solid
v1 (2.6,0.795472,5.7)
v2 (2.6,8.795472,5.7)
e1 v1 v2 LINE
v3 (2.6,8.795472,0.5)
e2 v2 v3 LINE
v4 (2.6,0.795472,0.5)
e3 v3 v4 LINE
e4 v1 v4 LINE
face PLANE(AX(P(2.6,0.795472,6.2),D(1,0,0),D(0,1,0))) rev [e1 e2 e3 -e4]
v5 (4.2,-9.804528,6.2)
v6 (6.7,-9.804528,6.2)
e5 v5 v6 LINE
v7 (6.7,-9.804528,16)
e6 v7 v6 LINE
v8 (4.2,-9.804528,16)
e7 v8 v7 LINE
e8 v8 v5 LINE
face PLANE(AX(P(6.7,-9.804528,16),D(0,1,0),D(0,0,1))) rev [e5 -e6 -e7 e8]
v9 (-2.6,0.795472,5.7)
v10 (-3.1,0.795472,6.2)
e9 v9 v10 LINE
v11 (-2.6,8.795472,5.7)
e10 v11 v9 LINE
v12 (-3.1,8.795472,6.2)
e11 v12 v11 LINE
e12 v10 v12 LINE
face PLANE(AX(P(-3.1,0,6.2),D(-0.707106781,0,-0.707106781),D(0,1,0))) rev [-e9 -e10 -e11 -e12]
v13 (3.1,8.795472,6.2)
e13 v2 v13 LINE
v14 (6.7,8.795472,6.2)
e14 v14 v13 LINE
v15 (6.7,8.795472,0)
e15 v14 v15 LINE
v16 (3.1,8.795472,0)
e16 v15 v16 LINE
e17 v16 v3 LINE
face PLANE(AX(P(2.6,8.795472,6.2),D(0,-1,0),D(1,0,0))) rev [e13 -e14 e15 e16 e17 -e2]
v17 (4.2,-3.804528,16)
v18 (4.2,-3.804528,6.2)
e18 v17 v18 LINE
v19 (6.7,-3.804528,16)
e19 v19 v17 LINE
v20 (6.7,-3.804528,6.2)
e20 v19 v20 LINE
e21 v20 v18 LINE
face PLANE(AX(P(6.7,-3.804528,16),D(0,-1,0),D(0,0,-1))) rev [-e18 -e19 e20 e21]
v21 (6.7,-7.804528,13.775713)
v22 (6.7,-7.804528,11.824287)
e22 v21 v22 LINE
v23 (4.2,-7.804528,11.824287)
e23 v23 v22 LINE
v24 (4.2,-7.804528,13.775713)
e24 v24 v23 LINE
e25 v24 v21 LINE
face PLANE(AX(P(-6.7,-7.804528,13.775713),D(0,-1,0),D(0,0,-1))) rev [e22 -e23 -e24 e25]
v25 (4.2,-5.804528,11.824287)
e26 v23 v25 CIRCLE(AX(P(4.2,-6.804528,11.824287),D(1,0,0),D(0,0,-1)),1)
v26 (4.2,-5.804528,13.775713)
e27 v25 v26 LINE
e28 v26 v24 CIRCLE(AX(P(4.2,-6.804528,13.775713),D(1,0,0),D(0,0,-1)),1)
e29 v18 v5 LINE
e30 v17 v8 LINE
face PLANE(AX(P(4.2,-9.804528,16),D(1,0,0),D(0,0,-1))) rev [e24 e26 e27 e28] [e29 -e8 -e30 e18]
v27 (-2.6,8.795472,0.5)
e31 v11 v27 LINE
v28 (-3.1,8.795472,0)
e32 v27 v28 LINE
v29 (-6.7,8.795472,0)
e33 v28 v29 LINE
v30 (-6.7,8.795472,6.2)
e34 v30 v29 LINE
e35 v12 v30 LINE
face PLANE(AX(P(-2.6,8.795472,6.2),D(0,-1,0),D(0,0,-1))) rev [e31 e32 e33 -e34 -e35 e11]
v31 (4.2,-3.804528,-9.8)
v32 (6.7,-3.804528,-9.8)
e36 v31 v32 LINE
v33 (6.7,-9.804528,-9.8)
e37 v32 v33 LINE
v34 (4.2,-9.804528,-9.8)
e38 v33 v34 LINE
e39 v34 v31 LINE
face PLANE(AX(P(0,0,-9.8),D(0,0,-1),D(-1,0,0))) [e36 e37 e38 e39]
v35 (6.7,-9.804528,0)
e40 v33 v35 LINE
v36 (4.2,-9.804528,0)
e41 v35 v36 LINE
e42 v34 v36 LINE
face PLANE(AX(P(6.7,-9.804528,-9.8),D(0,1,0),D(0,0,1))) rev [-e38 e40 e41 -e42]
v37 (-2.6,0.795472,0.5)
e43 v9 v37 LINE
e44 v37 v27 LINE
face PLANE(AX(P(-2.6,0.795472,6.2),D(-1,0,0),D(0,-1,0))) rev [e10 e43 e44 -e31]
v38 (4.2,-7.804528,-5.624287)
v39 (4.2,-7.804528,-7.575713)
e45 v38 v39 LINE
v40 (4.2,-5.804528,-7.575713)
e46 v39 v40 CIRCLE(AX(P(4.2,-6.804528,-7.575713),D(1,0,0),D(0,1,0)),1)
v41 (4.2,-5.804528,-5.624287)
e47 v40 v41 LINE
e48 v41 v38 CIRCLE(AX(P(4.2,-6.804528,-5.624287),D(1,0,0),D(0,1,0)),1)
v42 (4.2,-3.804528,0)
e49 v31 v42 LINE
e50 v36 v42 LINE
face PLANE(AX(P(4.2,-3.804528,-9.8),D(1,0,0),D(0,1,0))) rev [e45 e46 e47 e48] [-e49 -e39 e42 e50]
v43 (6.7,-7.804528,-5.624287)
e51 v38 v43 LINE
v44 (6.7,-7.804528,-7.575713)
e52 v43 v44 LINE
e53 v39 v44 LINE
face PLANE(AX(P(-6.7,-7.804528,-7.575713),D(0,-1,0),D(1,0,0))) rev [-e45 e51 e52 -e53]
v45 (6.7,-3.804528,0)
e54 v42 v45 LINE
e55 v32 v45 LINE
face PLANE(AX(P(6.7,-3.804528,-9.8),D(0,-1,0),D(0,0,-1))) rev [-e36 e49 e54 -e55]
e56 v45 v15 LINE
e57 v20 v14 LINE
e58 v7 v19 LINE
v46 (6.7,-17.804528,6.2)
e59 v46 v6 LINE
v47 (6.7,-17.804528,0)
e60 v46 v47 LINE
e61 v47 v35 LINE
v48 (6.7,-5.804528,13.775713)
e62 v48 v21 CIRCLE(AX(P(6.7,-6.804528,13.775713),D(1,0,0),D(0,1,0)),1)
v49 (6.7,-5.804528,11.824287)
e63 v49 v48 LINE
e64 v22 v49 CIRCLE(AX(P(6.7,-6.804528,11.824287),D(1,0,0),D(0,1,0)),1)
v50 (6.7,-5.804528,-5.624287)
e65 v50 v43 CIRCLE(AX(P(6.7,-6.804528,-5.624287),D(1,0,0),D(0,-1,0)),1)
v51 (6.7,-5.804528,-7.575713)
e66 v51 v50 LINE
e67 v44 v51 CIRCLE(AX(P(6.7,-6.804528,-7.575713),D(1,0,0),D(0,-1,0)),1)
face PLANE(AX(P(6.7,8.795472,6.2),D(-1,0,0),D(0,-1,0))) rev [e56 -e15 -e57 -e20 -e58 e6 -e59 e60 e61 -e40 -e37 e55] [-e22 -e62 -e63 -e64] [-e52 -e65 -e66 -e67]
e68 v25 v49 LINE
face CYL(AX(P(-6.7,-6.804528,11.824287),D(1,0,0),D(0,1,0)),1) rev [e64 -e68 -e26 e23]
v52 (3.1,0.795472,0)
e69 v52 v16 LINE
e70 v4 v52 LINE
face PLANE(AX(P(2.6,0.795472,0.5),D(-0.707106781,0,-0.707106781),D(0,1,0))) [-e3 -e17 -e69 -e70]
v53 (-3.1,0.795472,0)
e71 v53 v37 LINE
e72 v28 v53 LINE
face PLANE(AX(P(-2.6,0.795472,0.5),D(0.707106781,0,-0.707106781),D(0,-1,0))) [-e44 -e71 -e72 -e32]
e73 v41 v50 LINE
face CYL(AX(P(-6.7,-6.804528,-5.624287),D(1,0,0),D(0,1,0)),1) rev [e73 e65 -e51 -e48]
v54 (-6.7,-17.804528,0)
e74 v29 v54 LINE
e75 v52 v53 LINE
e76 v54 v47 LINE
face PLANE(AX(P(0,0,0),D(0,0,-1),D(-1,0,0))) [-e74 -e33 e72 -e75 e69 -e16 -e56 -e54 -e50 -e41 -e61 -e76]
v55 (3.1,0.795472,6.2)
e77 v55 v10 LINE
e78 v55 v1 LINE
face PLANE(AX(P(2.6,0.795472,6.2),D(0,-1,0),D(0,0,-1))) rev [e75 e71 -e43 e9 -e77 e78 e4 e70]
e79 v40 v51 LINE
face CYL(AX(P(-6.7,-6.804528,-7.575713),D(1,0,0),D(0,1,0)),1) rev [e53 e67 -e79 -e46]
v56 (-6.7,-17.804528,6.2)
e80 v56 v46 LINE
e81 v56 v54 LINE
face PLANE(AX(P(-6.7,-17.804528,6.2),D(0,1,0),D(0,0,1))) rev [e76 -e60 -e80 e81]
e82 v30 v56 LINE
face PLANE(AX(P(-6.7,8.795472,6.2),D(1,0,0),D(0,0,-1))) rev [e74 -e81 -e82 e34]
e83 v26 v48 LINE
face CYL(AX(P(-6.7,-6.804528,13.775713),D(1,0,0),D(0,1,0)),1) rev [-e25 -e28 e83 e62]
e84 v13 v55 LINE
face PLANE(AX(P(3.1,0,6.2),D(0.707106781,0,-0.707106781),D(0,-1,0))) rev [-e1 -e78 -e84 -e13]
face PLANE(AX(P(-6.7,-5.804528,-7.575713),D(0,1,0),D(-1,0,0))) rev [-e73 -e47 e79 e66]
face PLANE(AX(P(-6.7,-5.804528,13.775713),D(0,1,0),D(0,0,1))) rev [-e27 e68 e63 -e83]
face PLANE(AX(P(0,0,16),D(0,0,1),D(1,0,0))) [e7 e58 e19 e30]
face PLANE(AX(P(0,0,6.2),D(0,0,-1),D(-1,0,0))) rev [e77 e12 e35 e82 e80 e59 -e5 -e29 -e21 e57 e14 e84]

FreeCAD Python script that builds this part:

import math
import FreeCAD as App
import Part
import Sketcher
from FreeCAD import Vector


def edges_at(feature, points):
    """Names of the edges that pass closest to the given points."""
    edges = feature.Shape.Edges
    near = lambda p: min(range(len(edges)), key=lambda i: edges[i].distToShape(Part.Vertex(*p))[0])
    return sorted({f"Edge{near(p) + 1}" for p in points})

doc = App.newDocument("Part")
body = doc.addObject("PartDesign::Body", "Body")

sketch1 = body.newObject("Sketcher::SketchObject", "Sketch")
sketch1.AttachmentSupport = (doc.getObject("XY_Plane"), [""])
sketch1.MapMode = "FlatFace"
sketch1.addGeometry([
    Part.LineSegment(Vector(2.6, 0.795472, 0), Vector(-2.6, 0.795472, 0)),
    Part.LineSegment(Vector(-2.6, 0.795472, 0), Vector(-2.6, 8.795472, 0)),
    Part.LineSegment(Vector(-2.6, 8.795472, 0), Vector(-6.7, 8.795472, 0)),
    Part.LineSegment(Vector(-6.7, 8.795472, 0), Vector(-6.7, -17.804528, 0)),
    Part.LineSegment(Vector(-6.7, -17.804528, 0), Vector(6.7, -17.804528, 0)),
    Part.LineSegment(Vector(6.7, -17.804528, 0), Vector(6.7, 8.795472, 0)),
    Part.LineSegment(Vector(6.7, 8.795472, 0), Vector(2.6, 8.795472, 0)),
    Part.LineSegment(Vector(2.6, 8.795472, 0), Vector(2.6, 0.795472, 0)),
], False)
sketch1.addConstraint([
    Sketcher.Constraint("Coincident", 0, 2, 1, 1),
    Sketcher.Constraint("Coincident", 1, 2, 2, 1),
    Sketcher.Constraint("Coincident", 2, 2, 3, 1),
    Sketcher.Constraint("Coincident", 3, 2, 4, 1),
    Sketcher.Constraint("Coincident", 4, 2, 5, 1),
    Sketcher.Constraint("Coincident", 5, 2, 6, 1),
    Sketcher.Constraint("Coincident", 6, 2, 7, 1),
    Sketcher.Constraint("Coincident", 7, 2, 0, 1),
    Sketcher.Constraint("Horizontal", 0),
    Sketcher.Constraint("Vertical", 1),
    Sketcher.Constraint("Horizontal", 2),
    Sketcher.Constraint("Vertical", 3),
    Sketcher.Constraint("Horizontal", 4),
    Sketcher.Constraint("Vertical", 5),
    Sketcher.Constraint("Horizontal", 6),
    Sketcher.Constraint("Vertical", 7),
    Sketcher.Constraint("Symmetric", 2, 2, 5, 2, -2),
    Sketcher.Constraint("Equal", 2, 6),
    Sketcher.Constraint("DistanceY", 1, 1, 1, 2, 8.0),
    Sketcher.Constraint("DistanceX", 0, 2, 0, 1, 5.2),
    Sketcher.Constraint("DistanceX", 2, 2, 2, 1, 4.1),
    Sketcher.Constraint("DistanceY", 3, 2, 3, 1, 26.6),
    Sketcher.Constraint("DistanceY", -1, 1, 0, 2, 0.795472),
])
pad1 = body.newObject("PartDesign::Pad", "Pad")
pad1.Profile = sketch1
pad1.Length = 6.2

sketch2 = body.newObject("Sketcher::SketchObject", "Sketch001")
sketch2.AttachmentSupport = (doc.getObject("XY_Plane"), [""])
sketch2.MapMode = "FlatFace"
sketch2.AttachmentOffset = App.Placement(Vector(0, 0, 6.2), App.Rotation())
sketch2.addGeometry([
    Part.LineSegment(Vector(4.2, -3.804528, 0), Vector(4.2, -9.804528, 0)),
    Part.LineSegment(Vector(4.2, -9.804528, 0), Vector(6.7, -9.804528, 0)),
    Part.LineSegment(Vector(6.7, -9.804528, 0), Vector(6.7, -3.804528, 0)),
    Part.LineSegment(Vector(6.7, -3.804528, 0), Vector(4.2, -3.804528, 0)),
], False)
sketch2.addConstraint([
    Sketcher.Constraint("Coincident", 0, 2, 1, 1),
    Sketcher.Constraint("Coincident", 1, 2, 2, 1),
    Sketcher.Constraint("Coincident", 2, 2, 3, 1),
    Sketcher.Constraint("Coincident", 3, 2, 0, 1),
    Sketcher.Constraint("Vertical", 0),
    Sketcher.Constraint("Horizontal", 1),
    Sketcher.Constraint("Vertical", 2),
    Sketcher.Constraint("Horizontal", 3),
    Sketcher.Constraint("DistanceY", 0, 2, 0, 1, 6.0),
    Sketcher.Constraint("DistanceX", 1, 1, 1, 2, 2.5),
    Sketcher.Constraint("DistanceX", -1, 1, 0, 2, 4.2),
    Sketcher.Constraint("DistanceY", 0, 2, -1, 1, 9.804528),
])
pad2 = body.newObject("PartDesign::Pad", "Pad001")
pad2.Profile = sketch2
pad2.Length = 9.8

sketch3 = body.newObject("Sketcher::SketchObject", "Sketch002")
sketch3.AttachmentSupport = (doc.getObject("XY_Plane"), [""])
sketch3.MapMode = "FlatFace"
sketch3.addGeometry([
    Part.LineSegment(Vector(6.7, -3.804528, 0), Vector(6.7, -9.804528, 0)),
    Part.LineSegment(Vector(6.7, -9.804528, 0), Vector(4.2, -9.804528, 0)),
    Part.LineSegment(Vector(4.2, -9.804528, 0), Vector(4.2, -3.804528, 0)),
    Part.LineSegment(Vector(4.2, -3.804528, 0), Vector(6.7, -3.804528, 0)),
], False)
sketch3.addConstraint([
    Sketcher.Constraint("Coincident", 0, 2, 1, 1),
    Sketcher.Constraint("Coincident", 1, 2, 2, 1),
    Sketcher.Constraint("Coincident", 2, 2, 3, 1),
    Sketcher.Constraint("Coincident", 3, 2, 0, 1),
    Sketcher.Constraint("Vertical", 0),
    Sketcher.Constraint("Horizontal", 1),
    Sketcher.Constraint("Vertical", 2),
    Sketcher.Constraint("Horizontal", 3),
    Sketcher.Constraint("DistanceY", 0, 2, 0, 1, 6.0),
    Sketcher.Constraint("DistanceX", 1, 2, 1, 1, 2.5),
    Sketcher.Constraint("DistanceX", -1, 1, 0, 2, 6.7),
    Sketcher.Constraint("DistanceY", 0, 2, -1, 1, 9.804528),
])
pad3 = body.newObject("PartDesign::Pad", "Pad002")
pad3.Profile = sketch3
pad3.Length = 9.8
pad3.Reversed = True

sketch4 = body.newObject("Sketcher::SketchObject", "Sketch003")
sketch4.AttachmentSupport = (doc.getObject("YZ_Plane"), [""])
sketch4.MapMode = "FlatFace"
sketch4.AttachmentOffset = App.Placement(Vector(0, 0, 6.7), App.Rotation())
sketch4.addGeometry([
    Part.LineSegment(Vector(-5.804528, 11.824287, 0), Vector(-5.804528, 13.775713, 0)),
    Part.ArcOfCircle(Part.Circle(Vector(-6.804528, 13.775713, 0), Vector(0, 0, 1), 1), math.radians(0), math.radians(180)),
    Part.LineSegment(Vector(-7.804528, 13.775713, 0), Vector(-7.804528, 11.824287, 0)),
    Part.ArcOfCircle(Part.Circle(Vector(-6.804528, 11.824287, 0), Vector(0, 0, 1), 1), math.radians(180), math.radians(360)),
    Part.LineSegment(Vector(-5.804528, -7.575713, 0), Vector(-5.804528, -5.624287, 0)),
    Part.ArcOfCircle(Part.Circle(Vector(-6.804528, -5.624287, 0), Vector(0, 0, 1), 1), math.radians(0), math.radians(180)),
    Part.LineSegment(Vector(-7.804528, -5.624287, 0), Vector(-7.804528, -7.575713, 0)),
    Part.ArcOfCircle(Part.Circle(Vector(-6.804528, -7.575713, 0), Vector(0, 0, 1), 1), math.radians(180), math.radians(360)),
], False)
sketch4.addConstraint([
    Sketcher.Constraint("Tangent", 0, 2, 1, 1),
    Sketcher.Constraint("Tangent", 1, 2, 2, 1),
    Sketcher.Constraint("Tangent", 2, 2, 3, 1),
    Sketcher.Constraint("Tangent", 3, 2, 0, 1),
    Sketcher.Constraint("Tangent", 4, 2, 5, 1),
    Sketcher.Constraint("Tangent", 5, 2, 6, 1),
    Sketcher.Constraint("Tangent", 6, 2, 7, 1),
    Sketcher.Constraint("Tangent", 7, 2, 4, 1),
    Sketcher.Constraint("Vertical", 0),
    Sketcher.Constraint("Vertical", 2),
    Sketcher.Constraint("Vertical", 4),
    Sketcher.Constraint("Vertical", 6),
    Sketcher.Constraint("Equal", 3, 5),
    Sketcher.Constraint("Vertical", 3, 3, 5, 3),
    Sketcher.Constraint("Equal", 2, 4),
    Sketcher.Constraint("Radius", 1, 1.0),
    Sketcher.Constraint("DistanceY", 5, 3, 1, 3, 19.4),
    Sketcher.Constraint("DistanceY", 0, 1, 0, 2, 1.951426),
    Sketcher.Constraint("DistanceX", 1, 3, -1, 1, 6.804528),
    Sketcher.Constraint("DistanceY", -1, 1, 1, 3, 13.775713),
])
pocket1 = body.newObject("PartDesign::Pocket", "Pocket")
pocket1.Profile = sketch4
pocket1.Type = "ThroughAll"
doc.recompute()

chamfer = body.newObject("PartDesign::Chamfer", "Chamfer")
chamfer.Base = (pocket1, edges_at(pocket1, [
    (-2.6, 4.795, 0),
    (2.6, 4.795, 0),
    (-2.6, 4.795, 6.2),
    (2.6, 4.795, 6.2),
]))
chamfer.Size = 0.5

doc.recompute()
